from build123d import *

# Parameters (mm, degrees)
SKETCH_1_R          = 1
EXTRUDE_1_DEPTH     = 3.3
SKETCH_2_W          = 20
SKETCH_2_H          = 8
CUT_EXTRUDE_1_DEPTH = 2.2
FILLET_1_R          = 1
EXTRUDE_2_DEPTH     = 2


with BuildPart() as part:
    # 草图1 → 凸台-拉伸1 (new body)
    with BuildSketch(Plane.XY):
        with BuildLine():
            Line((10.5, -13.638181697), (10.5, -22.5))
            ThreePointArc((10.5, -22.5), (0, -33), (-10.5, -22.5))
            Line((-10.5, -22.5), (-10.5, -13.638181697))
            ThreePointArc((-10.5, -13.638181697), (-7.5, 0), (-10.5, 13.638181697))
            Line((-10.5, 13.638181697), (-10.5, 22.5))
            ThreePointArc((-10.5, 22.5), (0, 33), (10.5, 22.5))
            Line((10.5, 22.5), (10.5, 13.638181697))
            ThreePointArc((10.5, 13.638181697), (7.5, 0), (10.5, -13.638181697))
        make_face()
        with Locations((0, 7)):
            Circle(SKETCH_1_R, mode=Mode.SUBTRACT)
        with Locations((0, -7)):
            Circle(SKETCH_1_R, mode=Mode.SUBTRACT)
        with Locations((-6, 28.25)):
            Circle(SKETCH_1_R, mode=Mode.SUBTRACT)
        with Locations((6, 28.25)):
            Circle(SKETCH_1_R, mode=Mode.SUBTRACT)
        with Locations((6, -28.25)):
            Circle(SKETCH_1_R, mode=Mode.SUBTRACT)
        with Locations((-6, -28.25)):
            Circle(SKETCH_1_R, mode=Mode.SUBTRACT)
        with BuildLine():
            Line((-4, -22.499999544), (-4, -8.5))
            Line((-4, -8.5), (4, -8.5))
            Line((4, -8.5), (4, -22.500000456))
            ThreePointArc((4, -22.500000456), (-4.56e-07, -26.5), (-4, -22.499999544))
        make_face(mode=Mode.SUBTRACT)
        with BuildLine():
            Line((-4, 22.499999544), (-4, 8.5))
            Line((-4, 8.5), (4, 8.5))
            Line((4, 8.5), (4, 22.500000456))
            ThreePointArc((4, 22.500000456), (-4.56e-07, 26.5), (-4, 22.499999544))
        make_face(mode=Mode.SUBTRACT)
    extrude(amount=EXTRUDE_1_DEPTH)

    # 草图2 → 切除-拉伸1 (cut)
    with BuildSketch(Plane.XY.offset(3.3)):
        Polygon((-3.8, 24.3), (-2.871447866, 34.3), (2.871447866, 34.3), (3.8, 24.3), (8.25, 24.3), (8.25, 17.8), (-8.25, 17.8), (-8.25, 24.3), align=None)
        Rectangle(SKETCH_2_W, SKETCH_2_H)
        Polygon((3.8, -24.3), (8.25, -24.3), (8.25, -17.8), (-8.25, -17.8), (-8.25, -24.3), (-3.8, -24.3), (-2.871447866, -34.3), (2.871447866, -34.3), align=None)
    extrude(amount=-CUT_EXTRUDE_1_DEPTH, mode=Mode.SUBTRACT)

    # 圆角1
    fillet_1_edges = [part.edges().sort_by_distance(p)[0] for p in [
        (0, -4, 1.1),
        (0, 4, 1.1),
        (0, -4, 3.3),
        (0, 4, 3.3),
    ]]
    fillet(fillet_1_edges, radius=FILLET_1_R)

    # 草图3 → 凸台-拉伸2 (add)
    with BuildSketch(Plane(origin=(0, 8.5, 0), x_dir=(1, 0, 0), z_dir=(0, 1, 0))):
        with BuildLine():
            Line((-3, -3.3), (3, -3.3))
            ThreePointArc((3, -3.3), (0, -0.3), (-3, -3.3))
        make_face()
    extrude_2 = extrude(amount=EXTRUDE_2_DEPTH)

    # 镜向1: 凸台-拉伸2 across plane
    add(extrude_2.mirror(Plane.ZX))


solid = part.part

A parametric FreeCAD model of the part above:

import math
import FreeCAD as App
import Part
import Sketcher

V = App.Vector


def edges_at(feature, points):
    """Names of the edges that pass closest to the given points."""
    edges = feature.Shape.Edges
    near = lambda p: min(range(len(edges)), key=lambda i: edges[i].distToShape(Part.Vertex(*p))[0])
    return sorted({f"Edge{near(p) + 1}" for p in points})


def add_polygon(sketch, points):
    """Adds a closed chain of lines whose ends are joined by coincident constraints."""
    first, n = sketch.GeometryCount, len(points)
    for a, b in zip(points, points[1:] + points[:1]):
        sketch.addGeometry(Part.LineSegment(App.Vector(*a, 0), App.Vector(*b, 0)), False)
    for i in range(n):
        sketch.addConstraint(Sketcher.Constraint("Coincident", first + i, 2, first + (i + 1) % n, 1))

doc = App.newDocument("Part")
body = doc.addObject("PartDesign::Body", "Body")

sketch1 = body.newObject("Sketcher::SketchObject", "Sketch")
sketch1.AttachmentSupport = (doc.getObject("XY_Plane"), [""])
sketch1.MapMode = "FlatFace"
sketch1.addGeometry(Part.LineSegment(V(10.5, -22.5, 0), V(10.5, -13.6, 0)), False)
sketch1.addGeometry(Part.ArcOfCircle(Part.Circle(V(40, 0, 0), V(0, 0, 1), 32.5), math.radians(155), math.radians(205)), False)
sketch1.addGeometry(Part.LineSegment(V(10.5, 13.6, 0), V(10.5, 22.5, 0)), False)
sketch1.addGeometry(Part.ArcOfCircle(Part.Circle(V(0, 22.5, 0), V(0, 0, 1), 10.5), math.radians(0), math.radians(180)), False)
sketch1.addGeometry(Part.LineSegment(V(-10.5, 22.5, 0), V(-10.5, 13.6, 0)), False)
sketch1.addGeometry(Part.ArcOfCircle(Part.Circle(V(-40, 0, 0), V(0, 0, 1), 32.5), math.radians(-25), math.radians(25)), False)
sketch1.addGeometry(Part.LineSegment(V(-10.5, -13.6, 0), V(-10.5, -22.5, 0)), False)
sketch1.addGeometry(Part.ArcOfCircle(Part.Circle(V(0, -22.5, 0), V(0, 0, 1), 10.5), math.radians(180), math.radians(360)), False)
sketch1.addGeometry(Part.Circle(V(6, -28.2, 0), V(0, 0, 1), 1), False)
sketch1.addGeometry(Part.LineSegment(V(-4, -22.5, 0), V(-4, -8.5, 0)), False)
sketch1.addGeometry(Part.LineSegment(V(-4, -8.5, 0), V(4, -8.5, 0)), False)
sketch1.addGeometry(Part.LineSegment(V(4, -8.5, 0), V(4, -22.5, 0)), False)
sketch1.addGeometry(Part.ArcOfCircle(Part.Circle(V(0, -22.5, 0), V(0, 0, 1), 4), math.radians(180), math.radians(360)), False)
sketch1.addGeometry(Part.Circle(V(-6, -28.2, 0), V(0, 0, 1), 1), False)
sketch1.addGeometry(Part.Circle(V(0, -7, 0), V(0, 0, 1), 1), False)
sketch1.addGeometry(Part.Circle(V(6, 28.2, 0), V(0, 0, 1), 1), False)
sketch1.addGeometry(Part.Circle(V(0, 7, 0), V(0, 0, 1), 1), False)
sketch1.addGeometry(Part.ArcOfCircle(Part.Circle(V(0, 22.5, 0), V(0, 0, 1), 4), math.radians(0), math.radians(180)), False)
sketch1.addGeometry(Part.LineSegment(V(4, 22.5, 0), V(4, 8.5, 0)), False)
sketch1.addGeometry(Part.LineSegment(V(4, 8.5, 0), V(-4, 8.5, 0)), False)
sketch1.addGeometry(Part.LineSegment(V(-4, 8.5, 0), V(-4, 22.5, 0)), False)
sketch1.addGeometry(Part.Circle(V(-6, 28.2, 0), V(0, 0, 1), 1), False)
sketch1.addConstraint(Sketcher.Constraint("Coincident", 0, 2, 1, 2))
sketch1.addConstraint(Sketcher.Constraint("Coincident", 1, 1, 2, 1))
sketch1.addConstraint(Sketcher.Constraint("Tangent", 2, 2, 3, 1))
sketch1.addConstraint(Sketcher.Constraint("Tangent", 3, 2, 4, 1))
sketch1.addConstraint(Sketcher.Constraint("Coincident", 4, 2, 5, 2))
sketch1.addConstraint(Sketcher.Constraint("Coincident", 5, 1, 6, 1))
sketch1.addConstraint(Sketcher.Constraint("Tangent", 6, 2, 7, 1))
sketch1.addConstraint(Sketcher.Constraint("Tangent", 7, 2, 0, 1))
sketch1.addConstraint(Sketcher.Constraint("Coincident", 9, 2, 10, 1))
sketch1.addConstraint(Sketcher.Constraint("Coincident", 10, 2, 11, 1))
sketch1.addConstraint(Sketcher.Constraint("Tangent", 11, 2, 12, 2))
sketch1.addConstraint(Sketcher.Constraint("Tangent", 12, 1, 9, 1))
sketch1.addConstraint(Sketcher.Constraint("Tangent", 17, 1, 18, 1))
sketch1.addConstraint(Sketcher.Constraint("Coincident", 18, 2, 19, 1))
sketch1.addConstraint(Sketcher.Constraint("Coincident", 19, 2, 20, 1))
sketch1.addConstraint(Sketcher.Constraint("Tangent", 20, 2, 17, 2))
sketch1.addConstraint(Sketcher.Constraint("Vertical", 0))
sketch1.addConstraint(Sketcher.Constraint("Vertical", 2))
sketch1.addConstraint(Sketcher.Constraint("Vertical", 4))
sketch1.addConstraint(Sketcher.Constraint("Vertical", 6))
sketch1.addConstraint(Sketcher.Constraint("Vertical", 9))
sketch1.addConstraint(Sketcher.Constraint("Horizontal", 10))
sketch1.addConstraint(Sketcher.Constraint("Vertical", 11))
sketch1.addConstraint(Sketcher.Constraint("Vertical", 18))
sketch1.addConstraint(Sketcher.Constraint("Horizontal", 19))
sketch1.addConstraint(Sketcher.Constraint("Vertical", 20))
sketch1.addConstraint(Sketcher.Constraint("Coincident", 12, 3, 7, 3))
sketch1.addConstraint(Sketcher.Constraint("Coincident", 17, 3, 3, 3))
sketch1.addConstraint(Sketcher.Constraint("Equal", 1, 5))
sketch1.addConstraint(Sketcher.Constraint("Equal", 3, 7))
sketch1.addConstraint(Sketcher.Constraint("Equal", 8, 13))
sketch1.addConstraint(Sketcher.Constraint("Equal", 13, 14))
sketch1.addConstraint(Sketcher.Constraint("Equal", 14, 15))
sketch1.addConstraint(Sketcher.Constraint("Equal", 15, 16))
sketch1.addConstraint(Sketcher.Constraint("Equal", 12, 17))
sketch1.addConstraint(Sketcher.Constraint("Equal", 16, 21))
sketch1.addConstraint(Sketcher.Constraint("Symmetric", 1, 3, 5, 3, -1, 1))
sketch1.addConstraint(Sketcher.Constraint("Symmetric", 3, 3, 7, 3, -1, 1))
sketch1.addConstraint(Sketcher.Constraint("Symmetric", 13, 3, 15, 3, -1, 1))
sketch1.addConstraint(Sketcher.Constraint("Symmetric", 14, 3, 16, 3, -1, 1))
sketch1.addConstraint(Sketcher.Constraint("Symmetric", 8, 3, 21, 3, -1, 1))
sketch1.addConstraint(Sketcher.Constraint("Symmetric", 8, 3, 13, 3, -2))
sketch1.addConstraint(Sketcher.Constraint("Symmetric", 1, 1, 4, 2, -2))
sketch1.addConstraint(Sketcher.Constraint("PointOnObject", 14, 3, -2))
sketch1.addConstraint(Sketcher.Constraint("Equal", 11, 18))
sketch1.addConstraint(Sketcher.Constraint("Diameter", 8, 2.0))
sketch1.addConstraint(Sketcher.Constraint("Radius", 12, 4.0))
sketch1.addConstraint(Sketcher.Constraint("Radius", 1, 32.5))
sketch1.addConstraint(Sketcher.Constraint("Radius", 3, 10.5))
sketch1.addConstraint(Sketcher.Constraint("DistanceY", 9, 1, 9, 2, 14.0))
sketch1.addConstraint(Sketcher.Constraint("DistanceX", -1, 1, 1, 3, 40.0))
sketch1.addConstraint(Sketcher.Constraint("DistanceX", -1, 1, 8, 3, 6.0))
sketch1.addConstraint(Sketcher.Constraint("DistanceY", 14, 3, -1, 1, 7.0))
sketch1.addConstraint(Sketcher.Constraint("DistanceY", 7, 3, 3, 3, 45.0))
sketch1.addConstraint(Sketcher.Constraint("DistanceY", 8, 3, -1, 1, 28.25))
pad1 = body.newObject("PartDesign::Pad", "Pad")
pad1.Profile = sketch1
pad1.Length = 3.3

sketch2 = body.newObject("Sketcher::SketchObject", "Sketch001")
sketch2.AttachmentSupport = (doc.getObject("XY_Plane"), [""])
sketch2.MapMode = "FlatFace"
sketch2.AttachmentOffset = App.Placement(V(0, 0, 3.3), App.Rotation())
add_polygon(sketch2, [(-2.9, 34.3), (-3.8, 24.3), (-8.2, 24.3), (-8.2, 17.8), (8.2, 17.8), (8.2, 24.3), (3.8, 24.3), (2.9, 34.3)])
add_polygon(sketch2, [(-10, 4), (-10, -4), (10, -4), (10, 4)])
add_polygon(sketch2, [(3.8, -24.3), (8.2, -24.3), (8.2, -17.8), (-8.2, -17.8), (-8.2, -24.3), (-3.8, -24.3), (-2.9, -34.3), (2.9, -34.3)])
sketch2.addConstraint(Sketcher.Constraint("Horizontal", 1))
sketch2.addConstraint(Sketcher.Constraint("Vertical", 2))
sketch2.addConstraint(Sketcher.Constraint("Horizontal", 3))
sketch2.addConstraint(Sketcher.Constraint("Vertical", 4))
sketch2.addConstraint(Sketcher.Constraint("Horizontal", 5))
sketch2.addConstraint(Sketcher.Constraint("Horizontal", 7))
sketch2.addConstraint(Sketcher.Constraint("Vertical", 8))
sketch2.addConstraint(Sketcher.Constraint("Horizontal", 9))
sketch2.addConstraint(Sketcher.Constraint("Vertical", 10))
sketch2.addConstraint(Sketcher.Constraint("Horizontal", 11))
sketch2.addConstraint(Sketcher.Constraint("Horizontal", 12))
sketch2.addConstraint(Sketcher.Constraint("Vertical", 13))
sketch2.addConstraint(Sketcher.Constraint("Horizontal", 14))
sketch2.addConstraint(Sketcher.Constraint("Vertical", 15))
sketch2.addConstraint(Sketcher.Constraint("Horizontal", 16))
sketch2.addConstraint(Sketcher.Constraint("Horizontal", 18))
sketch2.addConstraint(Sketcher.Constraint("Symmetric", 8, 2, 10, 2, -1, 1))
sketch2.addConstraint(Sketcher.Constraint("Symmetric", 1, 2, 12, 2, -1, 1))
sketch2.addConstraint(Sketcher.Constraint("Symmetric", 3, 2, 14, 2, -1, 1))
sketch2.addConstraint(Sketcher.Constraint("Symmetric", 5, 2, 16, 2, -1, 1))
sketch2.addConstraint(Sketcher.Constraint("Symmetric", 6, 2, 17, 2, -1, 1))
sketch2.addConstraint(Sketcher.Constraint("Symmetric", 1, 2, 4, 2, -2))
sketch2.addConstraint(Sketcher.Constraint("Parallel", 0, 19))
sketch2.addConstraint(Sketcher.Constraint("Vertical", 0, 2, 16, 2))
sketch2.addConstraint(Sketcher.Constraint("Vertical", 7, 2, 17, 2))
sketch2.addConstraint(Sketcher.Constraint("Vertical", 6, 2, 18, 2))
sketch2.addConstraint(Sketcher.Constraint("DistanceX", 9, 1, 9, 2, 20.0))
sketch2.addConstraint(Sketcher.Constraint("DistanceY", 8, 2, 8, 1, 8.0))
sketch2.addConstraint(Sketcher.Constraint("DistanceX", 3, 1, 3, 2, 16.5))
sketch2.addConstraint(Sketcher.Constraint("DistanceY", 2, 2, 2, 1, 6.5))
sketch2.addConstraint(Sketcher.Constraint("DistanceY", 5, 2, 6, 2, 10.0))
sketch2.addConstraint(Sketcher.Constraint("DistanceX", 1, 2, 1, 1, 4.45))
sketch2.addConstraint(Sketcher.Constraint("DistanceY", -1, 1, 0, 2, 24.3))
sketch2.addConstraint(Sketcher.Constraint("DistanceX", 7, 2, 7, 1, 5.742896))
pocket1 = body.newObject("PartDesign::Pocket", "Pocket")
pocket1.Profile = sketch2
pocket1.Length = 2.2
doc.recompute()

fillet = body.newObject("PartDesign::Fillet", "Fillet")
fillet.Base = (pocket1, edges_at(pocket1, [
    (0, -4, 1.1),
    (0, 4, 1.1),
    (0, -4, 3.3),
    (0, 4, 3.3),
]))
fillet.Radius = 1

sketch3 = body.newObject("Sketcher::SketchObject", "Sketch002")
sketch3.AttachmentSupport = (doc.getObject("XZ_Plane"), [""])
sketch3.MapMode = "FlatFace"
sketch3.AttachmentOffset = App.Placement(V(0, 0, -8.5), App.Rotation())
sketch3.addGeometry(Part.LineSegment(V(-3, 3.3, 0), V(3, 3.3, 0)), False)
sketch3.addGeometry(Part.ArcOfCircle(Part.Circle(V(0, 3.3, 0), V(0, 0, 1), 3), math.radians(180), math.radians(360)), False)
sketch3.addConstraint(Sketcher.Constraint("Coincident", 0, 1, 1, 1))
sketch3.addConstraint(Sketcher.Constraint("Coincident", 1, 2, 0, 2))
sketch3.addConstraint(Sketcher.Constraint("Horizontal", 0))
sketch3.addConstraint(Sketcher.Constraint("PointOnObject", 1, 3, -2))
sketch3.addConstraint(Sketcher.Constraint("Horizontal", 1, 3, 0, 1))
sketch3.addConstraint(Sketcher.Constraint("Radius", 1, 3.0))
sketch3.addConstraint(Sketcher.Constraint("DistanceY", -1, 1, 1, 3, 3.3))
pad2 = body.newObject("PartDesign::Pad", "Pad001")
pad2.Profile = sketch3
pad2.Length = 2
pad2.Reversed = True
doc.recompute()

mirrored = body.newObject("PartDesign::Mirrored", "Mirrored")
mirrored.Originals = [pad2]
mirrored.MirrorPlane = (doc.getObject("XZ_Plane"), [""])
body.Tip = mirrored

doc.recompute()
